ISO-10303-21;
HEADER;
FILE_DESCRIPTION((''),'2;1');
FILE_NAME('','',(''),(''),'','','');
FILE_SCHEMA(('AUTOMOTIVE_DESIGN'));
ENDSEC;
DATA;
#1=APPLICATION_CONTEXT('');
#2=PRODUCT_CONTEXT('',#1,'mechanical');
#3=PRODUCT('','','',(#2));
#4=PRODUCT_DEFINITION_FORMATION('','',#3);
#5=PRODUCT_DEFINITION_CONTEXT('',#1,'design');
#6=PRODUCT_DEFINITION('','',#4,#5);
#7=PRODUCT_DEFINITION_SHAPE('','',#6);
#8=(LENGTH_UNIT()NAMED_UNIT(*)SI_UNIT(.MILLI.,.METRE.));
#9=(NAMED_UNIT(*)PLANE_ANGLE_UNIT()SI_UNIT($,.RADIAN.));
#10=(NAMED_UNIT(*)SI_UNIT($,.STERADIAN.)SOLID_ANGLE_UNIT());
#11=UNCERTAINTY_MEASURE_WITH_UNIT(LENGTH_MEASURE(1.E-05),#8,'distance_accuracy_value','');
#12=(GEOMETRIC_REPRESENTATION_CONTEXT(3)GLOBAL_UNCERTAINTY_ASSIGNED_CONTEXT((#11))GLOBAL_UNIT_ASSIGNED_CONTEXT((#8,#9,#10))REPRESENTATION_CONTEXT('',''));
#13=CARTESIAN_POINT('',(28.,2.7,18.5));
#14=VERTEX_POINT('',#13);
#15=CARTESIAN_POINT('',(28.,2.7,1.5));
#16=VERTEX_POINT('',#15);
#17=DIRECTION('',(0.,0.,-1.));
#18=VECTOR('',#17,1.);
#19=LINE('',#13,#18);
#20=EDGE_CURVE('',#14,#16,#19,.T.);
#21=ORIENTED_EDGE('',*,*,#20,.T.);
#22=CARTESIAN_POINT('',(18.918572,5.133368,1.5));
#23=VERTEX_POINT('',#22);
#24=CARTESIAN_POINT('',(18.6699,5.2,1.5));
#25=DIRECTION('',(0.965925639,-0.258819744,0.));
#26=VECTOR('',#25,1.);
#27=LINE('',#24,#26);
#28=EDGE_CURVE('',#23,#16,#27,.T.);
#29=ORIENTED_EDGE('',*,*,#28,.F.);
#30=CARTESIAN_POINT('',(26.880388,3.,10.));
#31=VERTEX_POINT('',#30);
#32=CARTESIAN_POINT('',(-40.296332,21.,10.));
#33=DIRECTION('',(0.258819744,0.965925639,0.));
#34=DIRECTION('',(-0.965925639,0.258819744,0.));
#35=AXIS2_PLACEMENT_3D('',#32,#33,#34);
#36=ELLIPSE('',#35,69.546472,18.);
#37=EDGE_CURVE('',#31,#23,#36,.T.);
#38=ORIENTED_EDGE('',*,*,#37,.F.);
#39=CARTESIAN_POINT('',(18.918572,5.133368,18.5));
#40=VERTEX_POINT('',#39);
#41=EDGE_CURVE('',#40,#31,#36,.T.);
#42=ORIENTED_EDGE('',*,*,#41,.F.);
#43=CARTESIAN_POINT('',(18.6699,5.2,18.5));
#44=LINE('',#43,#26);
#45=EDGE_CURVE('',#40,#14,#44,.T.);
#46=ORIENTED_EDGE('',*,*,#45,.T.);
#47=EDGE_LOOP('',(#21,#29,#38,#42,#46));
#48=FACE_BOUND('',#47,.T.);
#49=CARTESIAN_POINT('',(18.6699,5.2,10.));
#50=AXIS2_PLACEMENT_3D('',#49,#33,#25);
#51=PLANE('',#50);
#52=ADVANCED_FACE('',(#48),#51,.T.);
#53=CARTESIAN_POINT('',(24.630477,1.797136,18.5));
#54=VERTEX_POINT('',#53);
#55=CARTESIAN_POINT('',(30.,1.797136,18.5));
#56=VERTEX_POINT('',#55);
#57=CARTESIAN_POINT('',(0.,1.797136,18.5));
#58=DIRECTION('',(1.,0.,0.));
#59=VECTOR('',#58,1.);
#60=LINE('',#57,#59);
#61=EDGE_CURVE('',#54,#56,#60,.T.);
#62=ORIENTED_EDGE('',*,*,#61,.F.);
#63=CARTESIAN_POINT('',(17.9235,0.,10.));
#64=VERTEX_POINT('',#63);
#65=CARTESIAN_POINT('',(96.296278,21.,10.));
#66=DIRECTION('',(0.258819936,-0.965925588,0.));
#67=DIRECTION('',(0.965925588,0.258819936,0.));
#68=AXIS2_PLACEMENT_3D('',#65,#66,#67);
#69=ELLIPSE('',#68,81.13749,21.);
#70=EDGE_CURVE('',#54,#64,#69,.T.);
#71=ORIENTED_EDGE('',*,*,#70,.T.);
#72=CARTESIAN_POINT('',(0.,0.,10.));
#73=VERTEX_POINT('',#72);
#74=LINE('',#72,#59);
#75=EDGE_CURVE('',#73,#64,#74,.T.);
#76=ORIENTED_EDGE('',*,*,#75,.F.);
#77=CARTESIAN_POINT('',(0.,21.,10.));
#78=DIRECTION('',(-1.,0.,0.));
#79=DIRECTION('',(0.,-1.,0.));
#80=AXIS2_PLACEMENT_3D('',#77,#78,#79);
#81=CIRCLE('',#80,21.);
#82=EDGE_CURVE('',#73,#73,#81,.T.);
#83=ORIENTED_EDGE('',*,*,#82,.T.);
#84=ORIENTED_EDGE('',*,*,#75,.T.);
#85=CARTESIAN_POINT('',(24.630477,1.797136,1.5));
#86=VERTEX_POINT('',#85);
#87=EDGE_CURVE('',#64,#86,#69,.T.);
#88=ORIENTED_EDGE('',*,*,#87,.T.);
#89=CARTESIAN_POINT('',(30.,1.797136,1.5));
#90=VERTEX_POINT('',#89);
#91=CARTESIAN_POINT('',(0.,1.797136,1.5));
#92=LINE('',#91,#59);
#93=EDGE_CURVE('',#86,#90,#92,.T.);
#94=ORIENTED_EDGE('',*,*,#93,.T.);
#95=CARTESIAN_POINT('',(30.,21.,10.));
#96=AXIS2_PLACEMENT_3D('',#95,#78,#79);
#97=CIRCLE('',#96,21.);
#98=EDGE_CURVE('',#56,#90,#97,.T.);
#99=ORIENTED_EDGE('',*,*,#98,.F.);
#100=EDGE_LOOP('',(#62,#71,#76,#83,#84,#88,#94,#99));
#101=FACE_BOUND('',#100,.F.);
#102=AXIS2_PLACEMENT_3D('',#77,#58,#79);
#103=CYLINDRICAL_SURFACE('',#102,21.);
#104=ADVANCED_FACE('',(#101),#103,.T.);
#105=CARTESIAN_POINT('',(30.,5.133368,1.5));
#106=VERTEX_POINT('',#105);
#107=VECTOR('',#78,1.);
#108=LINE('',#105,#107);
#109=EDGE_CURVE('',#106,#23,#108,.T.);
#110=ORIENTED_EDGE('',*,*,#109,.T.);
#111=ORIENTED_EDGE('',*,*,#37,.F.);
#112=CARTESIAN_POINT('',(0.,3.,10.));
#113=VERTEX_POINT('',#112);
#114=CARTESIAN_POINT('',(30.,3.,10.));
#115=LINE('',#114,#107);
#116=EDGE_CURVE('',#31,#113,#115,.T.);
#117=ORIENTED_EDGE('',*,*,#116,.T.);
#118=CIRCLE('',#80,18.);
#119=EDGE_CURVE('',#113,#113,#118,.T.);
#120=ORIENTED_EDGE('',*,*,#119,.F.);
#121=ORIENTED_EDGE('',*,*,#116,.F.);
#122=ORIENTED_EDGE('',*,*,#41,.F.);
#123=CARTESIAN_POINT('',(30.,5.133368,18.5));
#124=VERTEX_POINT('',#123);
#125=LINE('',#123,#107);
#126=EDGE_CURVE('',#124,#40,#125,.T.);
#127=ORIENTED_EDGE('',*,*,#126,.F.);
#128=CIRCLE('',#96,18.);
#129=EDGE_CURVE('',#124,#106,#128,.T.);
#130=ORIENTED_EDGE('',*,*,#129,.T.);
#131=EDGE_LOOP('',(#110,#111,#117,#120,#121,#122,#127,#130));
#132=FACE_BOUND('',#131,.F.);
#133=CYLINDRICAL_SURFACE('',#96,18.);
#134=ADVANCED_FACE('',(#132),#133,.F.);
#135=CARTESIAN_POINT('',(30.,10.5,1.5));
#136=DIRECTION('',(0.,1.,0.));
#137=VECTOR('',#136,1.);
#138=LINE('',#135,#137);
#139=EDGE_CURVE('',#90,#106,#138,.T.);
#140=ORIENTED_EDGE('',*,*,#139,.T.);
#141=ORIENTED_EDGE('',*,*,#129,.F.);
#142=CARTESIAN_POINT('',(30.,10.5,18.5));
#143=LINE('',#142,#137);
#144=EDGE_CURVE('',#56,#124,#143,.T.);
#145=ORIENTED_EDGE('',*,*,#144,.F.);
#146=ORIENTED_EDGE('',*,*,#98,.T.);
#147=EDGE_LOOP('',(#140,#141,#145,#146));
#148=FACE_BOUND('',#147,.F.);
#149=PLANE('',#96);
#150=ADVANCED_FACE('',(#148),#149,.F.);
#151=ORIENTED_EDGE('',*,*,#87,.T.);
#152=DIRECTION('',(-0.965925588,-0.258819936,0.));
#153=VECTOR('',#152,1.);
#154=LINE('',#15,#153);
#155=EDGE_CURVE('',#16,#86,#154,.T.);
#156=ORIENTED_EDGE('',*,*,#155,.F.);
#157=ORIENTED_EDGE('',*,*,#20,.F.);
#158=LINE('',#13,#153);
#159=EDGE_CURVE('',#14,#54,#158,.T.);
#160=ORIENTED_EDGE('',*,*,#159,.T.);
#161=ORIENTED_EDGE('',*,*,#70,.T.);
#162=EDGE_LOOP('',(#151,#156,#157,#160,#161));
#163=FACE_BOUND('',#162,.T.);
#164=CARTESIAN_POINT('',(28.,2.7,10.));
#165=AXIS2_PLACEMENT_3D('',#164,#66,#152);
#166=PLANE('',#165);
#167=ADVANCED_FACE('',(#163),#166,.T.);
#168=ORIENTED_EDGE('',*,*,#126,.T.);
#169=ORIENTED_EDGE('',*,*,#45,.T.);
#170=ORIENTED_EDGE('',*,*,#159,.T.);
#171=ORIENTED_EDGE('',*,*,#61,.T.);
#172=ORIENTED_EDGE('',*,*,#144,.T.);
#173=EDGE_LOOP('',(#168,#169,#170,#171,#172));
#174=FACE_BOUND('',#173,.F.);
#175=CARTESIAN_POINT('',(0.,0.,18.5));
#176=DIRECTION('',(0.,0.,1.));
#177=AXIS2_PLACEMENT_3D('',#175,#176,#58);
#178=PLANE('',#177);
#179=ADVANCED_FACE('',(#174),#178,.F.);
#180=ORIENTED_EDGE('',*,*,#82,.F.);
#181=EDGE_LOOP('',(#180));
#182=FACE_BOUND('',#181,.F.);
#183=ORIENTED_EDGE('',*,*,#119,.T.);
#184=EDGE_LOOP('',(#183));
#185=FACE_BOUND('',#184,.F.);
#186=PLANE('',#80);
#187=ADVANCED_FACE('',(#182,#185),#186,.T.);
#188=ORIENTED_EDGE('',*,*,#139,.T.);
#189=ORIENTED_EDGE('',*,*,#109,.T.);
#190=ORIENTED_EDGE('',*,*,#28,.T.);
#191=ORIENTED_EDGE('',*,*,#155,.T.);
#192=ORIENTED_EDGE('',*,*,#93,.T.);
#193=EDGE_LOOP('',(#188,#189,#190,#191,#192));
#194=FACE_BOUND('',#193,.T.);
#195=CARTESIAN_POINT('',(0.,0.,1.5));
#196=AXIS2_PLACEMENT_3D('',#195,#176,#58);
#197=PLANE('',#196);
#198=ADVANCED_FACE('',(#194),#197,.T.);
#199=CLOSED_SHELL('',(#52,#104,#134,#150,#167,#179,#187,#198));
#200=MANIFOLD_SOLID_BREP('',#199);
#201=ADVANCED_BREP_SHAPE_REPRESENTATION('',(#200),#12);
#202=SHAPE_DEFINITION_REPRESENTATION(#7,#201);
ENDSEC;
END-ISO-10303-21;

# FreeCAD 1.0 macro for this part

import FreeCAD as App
import Part
import Sketcher
from FreeCAD import Vector
Q = App.Units.Quantity


def add_polygon(sketch, points):
    """Adds a closed chain of lines whose ends are joined by coincident constraints."""
    first, n = sketch.GeometryCount, len(points)
    for a, b in zip(points, points[1:] + points[:1]):
        sketch.addGeometry(Part.LineSegment(App.Vector(*a, 0), App.Vector(*b, 0)), False)
    for i in range(n):
        sketch.addConstraint(Sketcher.Constraint("Coincident", first + i, 2, first + (i + 1) % n, 1))

doc = App.newDocument("Part")
body = doc.addObject("PartDesign::Body", "Body")

sketch1 = body.newObject("Sketcher::SketchObject", "Sketch")
sketch1.AttachmentSupport = (doc.getObject("XY_Plane"), [""])
sketch1.MapMode = "FlatFace"
sketch1.AttachmentOffset = App.Placement(Vector(0, 0, 10), App.Rotation())
add_polygon(sketch1, [(0, 3), (0, 0), (30, 0), (30, 3)])
sketch1.addGeometry(Part.LineSegment(Vector(30, 21, 0), Vector(0, 21, 0)), True)
sketch1.addConstraint([
    Sketcher.Constraint("Vertical", 0),
    Sketcher.Constraint("Horizontal", 1),
    Sketcher.Constraint("Vertical", 2),
    Sketcher.Constraint("Horizontal", 3),
    Sketcher.Constraint("Horizontal", 4),
    Sketcher.Constraint("Coincident", 0, 2, -1, 1),
    Sketcher.Constraint("PointOnObject", 4, 2, -2),
    Sketcher.Constraint("Vertical", 2, 2, 4, 1),
    Sketcher.Constraint("DistanceX", 1, 1, 1, 2, 30.0),
    Sketcher.Constraint("DistanceY", 0, 2, 0, 1, 3.0),
    Sketcher.Constraint("DistanceY", -1, 1, 4, 1, 21.0),
])
revolution = body.newObject("PartDesign::Revolution", "Revolution")
revolution.Profile = sketch1
revolution.ReferenceAxis = (sketch1, ["Axis0"])
revolution.Angle = 360

sketch2 = body.newObject("Sketcher::SketchObject", "Sketch001")
sketch2.AttachmentSupport = (doc.getObject("XY_Plane"), [""])
sketch2.MapMode = "FlatFace"
sketch2.AttachmentOffset = App.Placement(Vector(0, 0, 10), App.Rotation())
add_polygon(sketch2, [(28, 2.7), (17.9235, 0), (34.9235, 0), (34.9235, 5.2), (18.6699, 5.2)])
sketch2.addConstraint([
    Sketcher.Constraint("Horizontal", 1),
    Sketcher.Constraint("Vertical", 2),
    Sketcher.Constraint("Horizontal", 3),
    Sketcher.Constraint("PointOnObject", 0, 2, -1),
    Sketcher.Constraint("DistanceX", 1, 1, 1, 2, 17.0),
    Sketcher.Constraint("Angle", 4, Q("-15 deg")),
    Sketcher.Constraint("DistanceY", 2, 1, 2, 2, 5.2),
    Sketcher.Constraint("DistanceX", -1, 1, 4, 2, 28.0),
    Sketcher.Constraint("DistanceY", -1, 1, 4, 2, 2.7),
    Sketcher.Constraint("Angle", 0, Q("-165 deg")),
])
pocket1 = body.newObject("PartDesign::Pocket", "Pocket")
pocket1.Profile = sketch2
pocket1.Length = 17
pocket1.Midplane = True

doc.recompute()
